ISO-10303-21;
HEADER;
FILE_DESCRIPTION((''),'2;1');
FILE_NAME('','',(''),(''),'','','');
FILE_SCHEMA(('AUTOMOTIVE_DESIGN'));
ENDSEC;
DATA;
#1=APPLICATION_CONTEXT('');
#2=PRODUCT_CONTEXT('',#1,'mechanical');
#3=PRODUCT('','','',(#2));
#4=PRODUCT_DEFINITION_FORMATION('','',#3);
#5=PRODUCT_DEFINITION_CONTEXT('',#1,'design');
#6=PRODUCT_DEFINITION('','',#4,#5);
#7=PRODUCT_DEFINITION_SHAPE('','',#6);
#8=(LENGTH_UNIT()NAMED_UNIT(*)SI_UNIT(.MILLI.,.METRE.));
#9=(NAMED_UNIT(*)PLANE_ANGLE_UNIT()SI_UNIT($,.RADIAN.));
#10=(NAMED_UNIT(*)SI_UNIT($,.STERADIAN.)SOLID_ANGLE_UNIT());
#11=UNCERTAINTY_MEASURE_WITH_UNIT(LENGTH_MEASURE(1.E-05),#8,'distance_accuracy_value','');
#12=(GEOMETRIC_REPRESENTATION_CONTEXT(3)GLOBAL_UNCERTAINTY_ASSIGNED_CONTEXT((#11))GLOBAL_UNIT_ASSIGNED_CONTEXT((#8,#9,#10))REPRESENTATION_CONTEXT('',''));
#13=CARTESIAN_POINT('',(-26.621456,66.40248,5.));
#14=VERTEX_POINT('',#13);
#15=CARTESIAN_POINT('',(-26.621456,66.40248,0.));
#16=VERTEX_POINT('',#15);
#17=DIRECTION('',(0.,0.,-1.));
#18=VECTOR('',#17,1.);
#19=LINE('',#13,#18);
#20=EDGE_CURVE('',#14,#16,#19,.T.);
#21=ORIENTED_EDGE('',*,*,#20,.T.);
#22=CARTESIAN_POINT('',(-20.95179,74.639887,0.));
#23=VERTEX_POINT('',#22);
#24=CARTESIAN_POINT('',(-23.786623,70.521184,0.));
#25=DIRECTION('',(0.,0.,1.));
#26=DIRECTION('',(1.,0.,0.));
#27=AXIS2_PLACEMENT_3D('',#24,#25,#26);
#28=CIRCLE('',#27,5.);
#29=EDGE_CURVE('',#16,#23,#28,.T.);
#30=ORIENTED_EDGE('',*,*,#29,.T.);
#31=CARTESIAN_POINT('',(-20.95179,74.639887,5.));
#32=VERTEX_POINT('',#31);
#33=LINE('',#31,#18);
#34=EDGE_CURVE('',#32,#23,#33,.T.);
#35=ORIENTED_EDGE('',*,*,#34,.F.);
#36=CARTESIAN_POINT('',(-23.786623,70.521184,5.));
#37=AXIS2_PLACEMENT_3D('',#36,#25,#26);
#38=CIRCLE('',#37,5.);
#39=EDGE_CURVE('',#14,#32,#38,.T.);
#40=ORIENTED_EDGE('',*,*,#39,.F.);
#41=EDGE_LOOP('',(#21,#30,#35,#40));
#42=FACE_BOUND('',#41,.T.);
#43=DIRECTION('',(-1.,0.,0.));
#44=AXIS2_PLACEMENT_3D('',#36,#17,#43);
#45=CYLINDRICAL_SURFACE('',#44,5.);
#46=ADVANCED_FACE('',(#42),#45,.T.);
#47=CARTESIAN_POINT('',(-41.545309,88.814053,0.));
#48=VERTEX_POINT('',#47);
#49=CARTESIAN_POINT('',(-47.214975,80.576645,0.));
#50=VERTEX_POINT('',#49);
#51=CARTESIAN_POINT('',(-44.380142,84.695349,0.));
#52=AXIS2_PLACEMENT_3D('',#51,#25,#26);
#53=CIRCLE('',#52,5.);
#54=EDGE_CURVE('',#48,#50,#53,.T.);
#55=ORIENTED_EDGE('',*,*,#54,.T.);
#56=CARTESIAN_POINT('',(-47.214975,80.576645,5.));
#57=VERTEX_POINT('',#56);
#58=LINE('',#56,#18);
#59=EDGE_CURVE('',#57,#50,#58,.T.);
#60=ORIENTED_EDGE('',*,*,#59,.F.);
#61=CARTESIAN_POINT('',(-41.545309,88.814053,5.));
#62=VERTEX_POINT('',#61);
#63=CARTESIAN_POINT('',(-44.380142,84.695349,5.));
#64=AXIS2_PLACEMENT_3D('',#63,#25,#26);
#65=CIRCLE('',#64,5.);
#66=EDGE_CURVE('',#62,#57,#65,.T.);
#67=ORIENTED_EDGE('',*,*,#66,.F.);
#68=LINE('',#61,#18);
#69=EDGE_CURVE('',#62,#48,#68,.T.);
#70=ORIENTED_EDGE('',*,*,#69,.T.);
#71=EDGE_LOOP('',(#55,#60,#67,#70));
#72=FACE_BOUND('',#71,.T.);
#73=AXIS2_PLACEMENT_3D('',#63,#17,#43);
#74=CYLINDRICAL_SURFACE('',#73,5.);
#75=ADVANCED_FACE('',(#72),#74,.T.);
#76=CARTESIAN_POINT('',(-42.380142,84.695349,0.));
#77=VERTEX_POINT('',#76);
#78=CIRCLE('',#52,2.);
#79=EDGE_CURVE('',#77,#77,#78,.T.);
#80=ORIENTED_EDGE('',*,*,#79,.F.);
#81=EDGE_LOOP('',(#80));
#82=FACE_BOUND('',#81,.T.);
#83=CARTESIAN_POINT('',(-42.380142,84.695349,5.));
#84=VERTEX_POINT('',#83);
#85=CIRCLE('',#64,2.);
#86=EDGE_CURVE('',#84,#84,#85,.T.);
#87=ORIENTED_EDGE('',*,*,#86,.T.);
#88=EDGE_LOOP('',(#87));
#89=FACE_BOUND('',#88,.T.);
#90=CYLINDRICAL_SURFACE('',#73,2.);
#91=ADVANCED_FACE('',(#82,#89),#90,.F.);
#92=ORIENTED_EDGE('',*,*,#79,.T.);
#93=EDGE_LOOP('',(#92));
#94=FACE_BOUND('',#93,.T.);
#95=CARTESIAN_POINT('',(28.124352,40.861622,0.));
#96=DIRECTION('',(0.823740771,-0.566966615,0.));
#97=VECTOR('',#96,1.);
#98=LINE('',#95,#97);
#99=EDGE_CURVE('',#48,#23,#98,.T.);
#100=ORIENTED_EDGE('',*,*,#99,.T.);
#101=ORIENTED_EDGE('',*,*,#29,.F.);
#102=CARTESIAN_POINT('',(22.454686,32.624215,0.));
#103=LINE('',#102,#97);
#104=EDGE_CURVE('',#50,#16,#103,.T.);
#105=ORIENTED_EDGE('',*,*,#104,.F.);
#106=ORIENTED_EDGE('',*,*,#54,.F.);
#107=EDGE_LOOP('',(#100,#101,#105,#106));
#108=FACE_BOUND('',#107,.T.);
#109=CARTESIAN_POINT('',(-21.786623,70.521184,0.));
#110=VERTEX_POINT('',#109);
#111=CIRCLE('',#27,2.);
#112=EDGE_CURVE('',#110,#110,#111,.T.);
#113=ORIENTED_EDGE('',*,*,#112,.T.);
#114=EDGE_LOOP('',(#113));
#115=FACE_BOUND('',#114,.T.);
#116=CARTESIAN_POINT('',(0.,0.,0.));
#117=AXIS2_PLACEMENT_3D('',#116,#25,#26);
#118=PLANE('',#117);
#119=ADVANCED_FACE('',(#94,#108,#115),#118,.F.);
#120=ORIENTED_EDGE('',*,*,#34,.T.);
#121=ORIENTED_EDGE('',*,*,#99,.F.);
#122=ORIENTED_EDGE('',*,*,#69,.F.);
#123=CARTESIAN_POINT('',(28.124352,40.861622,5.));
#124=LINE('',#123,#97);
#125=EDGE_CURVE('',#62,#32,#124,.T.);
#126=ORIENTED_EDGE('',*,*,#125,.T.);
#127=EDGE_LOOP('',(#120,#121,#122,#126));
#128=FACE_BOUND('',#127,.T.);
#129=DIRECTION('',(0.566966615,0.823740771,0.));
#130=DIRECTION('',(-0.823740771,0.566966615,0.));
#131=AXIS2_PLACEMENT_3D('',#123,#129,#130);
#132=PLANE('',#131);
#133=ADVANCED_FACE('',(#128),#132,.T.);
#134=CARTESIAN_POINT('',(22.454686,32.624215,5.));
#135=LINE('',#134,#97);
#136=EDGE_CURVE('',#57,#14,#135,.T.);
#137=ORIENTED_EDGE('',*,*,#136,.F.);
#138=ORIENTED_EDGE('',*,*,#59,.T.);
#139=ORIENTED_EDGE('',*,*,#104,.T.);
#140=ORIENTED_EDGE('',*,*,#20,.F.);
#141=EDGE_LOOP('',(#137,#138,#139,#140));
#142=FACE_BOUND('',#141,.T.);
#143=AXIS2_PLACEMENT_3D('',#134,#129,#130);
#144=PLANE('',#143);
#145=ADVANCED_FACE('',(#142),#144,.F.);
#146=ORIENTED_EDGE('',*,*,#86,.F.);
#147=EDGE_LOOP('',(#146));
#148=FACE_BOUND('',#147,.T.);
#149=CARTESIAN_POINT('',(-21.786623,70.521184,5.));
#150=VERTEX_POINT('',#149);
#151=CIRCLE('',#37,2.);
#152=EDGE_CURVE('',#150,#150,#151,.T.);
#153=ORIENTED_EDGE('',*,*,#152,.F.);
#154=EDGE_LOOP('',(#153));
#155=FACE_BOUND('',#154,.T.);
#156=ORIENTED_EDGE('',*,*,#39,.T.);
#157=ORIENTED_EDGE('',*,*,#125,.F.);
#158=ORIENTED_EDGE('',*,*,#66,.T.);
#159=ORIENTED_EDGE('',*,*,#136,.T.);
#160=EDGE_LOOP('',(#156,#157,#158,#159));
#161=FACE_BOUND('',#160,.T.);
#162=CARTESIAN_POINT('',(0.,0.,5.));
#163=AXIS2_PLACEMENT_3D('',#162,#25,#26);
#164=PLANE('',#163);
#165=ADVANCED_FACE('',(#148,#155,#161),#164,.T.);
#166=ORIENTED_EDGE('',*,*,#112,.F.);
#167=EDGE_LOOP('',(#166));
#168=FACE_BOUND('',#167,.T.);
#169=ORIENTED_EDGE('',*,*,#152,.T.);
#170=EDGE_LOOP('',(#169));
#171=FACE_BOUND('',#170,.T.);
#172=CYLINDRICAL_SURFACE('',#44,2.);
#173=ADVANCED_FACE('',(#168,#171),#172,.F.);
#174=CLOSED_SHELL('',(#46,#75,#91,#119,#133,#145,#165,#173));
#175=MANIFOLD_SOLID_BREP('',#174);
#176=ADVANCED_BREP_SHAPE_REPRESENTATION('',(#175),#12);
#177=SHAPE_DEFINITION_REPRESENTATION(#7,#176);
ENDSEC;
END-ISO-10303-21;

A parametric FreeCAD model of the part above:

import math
import FreeCAD as App
import Part
import Sketcher

V = App.Vector

doc = App.newDocument("Part")
params = doc.addObject("Spreadsheet::Sheet", "Params")
for row, (alias, value) in enumerate([
    ("sketch1_diameter", "4 mm"),
    ("sketch1_radius", "5 mm"),
    ("sketch1_length", "25 mm"),
    ("pad1_length", "5 mm"),
], start=1):
    params.set(f"A{row}", alias)
    params.set(f"B{row}", "=" + value)
    params.setAlias(f"B{row}", alias)

body = doc.addObject("PartDesign::Body", "Body")

# Sketch on XY plane
sketch1 = doc.addObject("Sketcher::SketchObject", "Sketch")
body.addObject(sketch1)
sketch1.AttachmentSupport = (doc.XY_Plane, [""])
sketch1.MapMode = "FlatFace"
sketch1.addGeometry([
    Part.LineSegment(V(-21, 74.6, 0), V(-41.5, 88.8, 0)),  # 0
    Part.ArcOfCircle(Part.Circle(V(-44.4, 84.7, 0), V(0, 0, 1), 5), math.radians(55), math.radians(235)),  # 1
    Part.LineSegment(V(-47.2, 80.6, 0), V(-26.6, 66.4, 0)),  # 2
    Part.ArcOfCircle(Part.Circle(V(-23.8, 70.5, 0), V(0, 0, 1), 5), math.radians(-125), math.radians(55)),  # 3
    Part.Circle(V(-23.8, 70.5, 0), V(0, 0, 1), 2),  # 4
    Part.Circle(V(-44.4, 84.7, 0), V(0, 0, 1), 2),  # 5
], False)
sketch1.addConstraint([
    Sketcher.Constraint("Tangent", 0, 2, 1, 1),
    Sketcher.Constraint("Tangent", 1, 2, 2, 1),
    Sketcher.Constraint("Tangent", 2, 2, 3, 1),
    Sketcher.Constraint("Tangent", 3, 2, 0, 1),
    Sketcher.Constraint("Coincident", 4, 3, 3, 3),
    Sketcher.Constraint("Coincident", 5, 3, 1, 3),
    Sketcher.Constraint("Equal", 1, 3),
    Sketcher.Constraint("Equal", 4, 5),
    Sketcher.Constraint("Diameter", 4, 4.0),
    Sketcher.Constraint("Radius", 1, 5.0),
    Sketcher.Constraint("Distance", 0, 25.0),
    Sketcher.Constraint("DistanceX", 1, 3, -1, 1, 44.380142),
    Sketcher.Constraint("DistanceY", -1, 1, 1, 3, 84.695349),
    Sketcher.Constraint("DistanceX", 0, 2, -1, 1, 41.545309),
])
sketch1.setExpression("Constraints[8]", "Params.sketch1_diameter")
sketch1.setExpression("Constraints[9]", "Params.sketch1_radius")
sketch1.setExpression("Constraints[10]", "Params.sketch1_length")
pad1 = doc.addObject("PartDesign::Pad", "Pad")
body.addObject(pad1)
pad1.Profile = sketch1
pad1.setExpression("Length", "Params.pad1_length")

doc.recompute()
